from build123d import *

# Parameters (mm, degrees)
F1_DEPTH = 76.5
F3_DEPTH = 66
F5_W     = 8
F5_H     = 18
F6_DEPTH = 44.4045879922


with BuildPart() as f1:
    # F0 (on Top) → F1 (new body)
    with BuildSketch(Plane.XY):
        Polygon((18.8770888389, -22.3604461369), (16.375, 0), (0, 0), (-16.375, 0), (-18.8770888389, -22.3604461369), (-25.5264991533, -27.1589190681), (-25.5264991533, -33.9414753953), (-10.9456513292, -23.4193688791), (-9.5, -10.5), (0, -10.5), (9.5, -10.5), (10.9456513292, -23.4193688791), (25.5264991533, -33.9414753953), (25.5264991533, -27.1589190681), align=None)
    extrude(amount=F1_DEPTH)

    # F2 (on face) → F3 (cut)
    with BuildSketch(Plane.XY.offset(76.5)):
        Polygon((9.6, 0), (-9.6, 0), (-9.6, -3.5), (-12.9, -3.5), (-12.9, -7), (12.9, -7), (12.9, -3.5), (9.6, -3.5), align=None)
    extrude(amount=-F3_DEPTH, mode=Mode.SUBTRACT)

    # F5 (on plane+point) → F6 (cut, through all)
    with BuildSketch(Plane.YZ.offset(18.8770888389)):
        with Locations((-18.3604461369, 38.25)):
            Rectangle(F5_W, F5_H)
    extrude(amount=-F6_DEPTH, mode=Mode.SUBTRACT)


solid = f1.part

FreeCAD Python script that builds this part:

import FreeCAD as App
import Part
import Sketcher

V = App.Vector
Q = App.Units.Quantity

doc = App.newDocument("Part")
body = doc.addObject("PartDesign::Body", "Body")

# Sketch on XY plane
sketch1 = body.newObject("Sketcher::SketchObject", "Sketch")
sketch1.AttachmentSupport = (doc.getObject("XY_Plane"), [""])
sketch1.MapMode = "FlatFace"
sketch1.addGeometry([
    Part.LineSegment(V(19, -22, 0), V(16, 0, 0)),  # 0
    Part.LineSegment(V(16, 0, 0), V(-16, 0, 0)),  # 1
    Part.LineSegment(V(-16, 0, 0), V(-19, -22, 0)),  # 2
    Part.LineSegment(V(-19, -22, 0), V(-26, -27, 0)),  # 3
    Part.LineSegment(V(-26, -27, 0), V(-26, -34, 0)),  # 4
    Part.LineSegment(V(-26, -34, 0), V(-11, -23, 0)),  # 5
    Part.LineSegment(V(-11, -23, 0), V(-10, -10, 0)),  # 6
    Part.LineSegment(V(-10, -10, 0), V(10, -10, 0)),  # 7
    Part.LineSegment(V(10, -10, 0), V(11, -23, 0)),  # 8
    Part.LineSegment(V(11, -23, 0), V(26, -34, 0)),  # 9
    Part.LineSegment(V(26, -34, 0), V(26, -27, 0)),  # 10
    Part.LineSegment(V(26, -27, 0), V(19, -22, 0)),  # 11
], False)
sketch1.addConstraint([
    Sketcher.Constraint("Coincident", 0, 2, 1, 1),
    Sketcher.Constraint("Coincident", 1, 2, 2, 1),
    Sketcher.Constraint("Coincident", 2, 2, 3, 1),
    Sketcher.Constraint("Coincident", 3, 2, 4, 1),
    Sketcher.Constraint("Coincident", 4, 2, 5, 1),
    Sketcher.Constraint("Coincident", 5, 2, 6, 1),
    Sketcher.Constraint("Coincident", 6, 2, 7, 1),
    Sketcher.Constraint("Coincident", 7, 2, 8, 1),
    Sketcher.Constraint("Coincident", 8, 2, 9, 1),
    Sketcher.Constraint("Coincident", 9, 2, 10, 1),
    Sketcher.Constraint("Coincident", 10, 2, 11, 1),
    Sketcher.Constraint("Coincident", 11, 2, 0, 1),
    Sketcher.Constraint("Horizontal", 1),
    Sketcher.Constraint("Vertical", 4),
    Sketcher.Constraint("Horizontal", 7),
    Sketcher.Constraint("Vertical", 10),
    Sketcher.Constraint("Symmetric", 0, 2, 1, 2, -1, 1),
    Sketcher.Constraint("Symmetric", 5, 2, 8, 2, -2),
    Sketcher.Constraint("Symmetric", 4, 2, 9, 2, -2),
    Sketcher.Constraint("Symmetric", 2, 2, 11, 2, -2),
    Sketcher.Constraint("Parallel", 3, 5),
    Sketcher.Constraint("Parallel", 2, 6),
    Sketcher.Constraint("Parallel", 0, 8),
    Sketcher.Constraint("Parallel", 9, 11),
    Sketcher.Constraint("DistanceX", 7, 1, 7, 2, Q("19 mm")),
    Sketcher.Constraint("Distance", 6, Q("13 mm")),
    Sketcher.Constraint("Distance", 0, Q("22.5 mm")),
    Sketcher.Constraint("Distance", 3, Q("8.2 mm")),
    Sketcher.Constraint("DistanceX", 1, 2, 1, 1, Q("32.75 mm")),
    Sketcher.Constraint("DistanceY", 6, 2, -1, 1, Q("10.5 mm")),
    Sketcher.Constraint("DistanceX", 3, 2, -1, 1, Q("25.526499 mm")),
    Sketcher.Constraint("DistanceY", 4, 2, 4, 1, Q("6.782556 mm")),
])
pad1 = body.newObject("PartDesign::Pad", "Pad")
pad1.Profile = sketch1
pad1.Length = 76.5

# Sketch on XY plane
sketch2 = body.newObject("Sketcher::SketchObject", "Sketch001")
sketch2.AttachmentSupport = (doc.getObject("XY_Plane"), [""])
sketch2.MapMode = "FlatFace"
sketch2.AttachmentOffset = App.Placement(V(0, 0, 76.5), App.Rotation())
sketch2.addGeometry([
    Part.LineSegment(V(9.6, 0, 0), V(-9.6, 0, 0)),  # 0
    Part.LineSegment(V(-9.6, 0, 0), V(-9.6, -3.5, 0)),  # 1
    Part.LineSegment(V(-9.6, -3.5, 0), V(-12.9, -3.5, 0)),  # 2
    Part.LineSegment(V(-12.9, -3.5, 0), V(-12.9, -7, 0)),  # 3
    Part.LineSegment(V(-12.9, -7, 0), V(12.9, -7, 0)),  # 4
    Part.LineSegment(V(12.9, -7, 0), V(12.9, -3.5, 0)),  # 5
    Part.LineSegment(V(12.9, -3.5, 0), V(9.6, -3.5, 0)),  # 6
    Part.LineSegment(V(9.6, -3.5, 0), V(9.6, 0, 0)),  # 7
], False)
sketch2.addConstraint([
    Sketcher.Constraint("Coincident", 0, 2, 1, 1),
    Sketcher.Constraint("Coincident", 1, 2, 2, 1),
    Sketcher.Constraint("Coincident", 2, 2, 3, 1),
    Sketcher.Constraint("Coincident", 3, 2, 4, 1),
    Sketcher.Constraint("Coincident", 4, 2, 5, 1),
    Sketcher.Constraint("Coincident", 5, 2, 6, 1),
    Sketcher.Constraint("Coincident", 6, 2, 7, 1),
    Sketcher.Constraint("Coincident", 7, 2, 0, 1),
    Sketcher.Constraint("Horizontal", 0),
    Sketcher.Constraint("Vertical", 1),
    Sketcher.Constraint("Horizontal", 2),
    Sketcher.Constraint("Vertical", 3),
    Sketcher.Constraint("Horizontal", 4),
    Sketcher.Constraint("Vertical", 5),
    Sketcher.Constraint("Horizontal", 6),
    Sketcher.Constraint("Vertical", 7),
    Sketcher.Constraint("Symmetric", 0, 2, 7, 2, -1, 1),
    Sketcher.Constraint("Symmetric", 2, 2, 5, 2, -2),
    Sketcher.Constraint("Equal", 1, 3),
    Sketcher.Constraint("DistanceX", 0, 2, 0, 1, Q("19.2 mm")),
    Sketcher.Constraint("DistanceX", 2, 2, 2, 1, Q("3.3 mm")),
    Sketcher.Constraint("DistanceY", 1, 2, 1, 1, Q("3.5 mm")),
])
pocket1 = body.newObject("PartDesign::Pocket", "Pocket")
pocket1.Profile = sketch2
pocket1.Length = 66

# Sketch on YZ plane
sketch3 = body.newObject("Sketcher::SketchObject", "Sketch002")
sketch3.AttachmentSupport = (doc.getObject("YZ_Plane"), [""])
sketch3.MapMode = "FlatFace"
sketch3.AttachmentOffset = App.Placement(V(0, 0, 18.877089), App.Rotation())
sketch3.addGeometry([
    Part.LineSegment(V(-22, 47, 0), V(-22, 29, 0)),
    Part.LineSegment(V(-22, 29, 0), V(-14, 29, 0)),
    Part.LineSegment(V(-14, 29, 0), V(-14, 47, 0)),
    Part.LineSegment(V(-14, 47, 0), V(-22, 47, 0)),
], False)
sketch3.addConstraint([
    Sketcher.Constraint("Coincident", 0, 2, 1, 1),
    Sketcher.Constraint("Coincident", 1, 2, 2, 1),
    Sketcher.Constraint("Coincident", 2, 2, 3, 1),
    Sketcher.Constraint("Coincident", 3, 2, 0, 1),
    Sketcher.Constraint("Vertical", 0),
    Sketcher.Constraint("Horizontal", 1),
    Sketcher.Constraint("Vertical", 2),
    Sketcher.Constraint("Horizontal", 3),
    Sketcher.Constraint("DistanceX", 1, 1, 1, 2, Q("8 mm")),
    Sketcher.Constraint("DistanceY", 0, 2, 0, 1, Q("18 mm")),
    Sketcher.Constraint("DistanceY", -1, 1, 0, 2, Q("29.25 mm")),
    Sketcher.Constraint("DistanceX", 0, 2, -1, 1, Q("22.360446 mm")),
])
pocket2 = body.newObject("PartDesign::Pocket", "Pocket001")
pocket2.Profile = sketch3
pocket2.Type = "ThroughAll"

doc.recompute()
